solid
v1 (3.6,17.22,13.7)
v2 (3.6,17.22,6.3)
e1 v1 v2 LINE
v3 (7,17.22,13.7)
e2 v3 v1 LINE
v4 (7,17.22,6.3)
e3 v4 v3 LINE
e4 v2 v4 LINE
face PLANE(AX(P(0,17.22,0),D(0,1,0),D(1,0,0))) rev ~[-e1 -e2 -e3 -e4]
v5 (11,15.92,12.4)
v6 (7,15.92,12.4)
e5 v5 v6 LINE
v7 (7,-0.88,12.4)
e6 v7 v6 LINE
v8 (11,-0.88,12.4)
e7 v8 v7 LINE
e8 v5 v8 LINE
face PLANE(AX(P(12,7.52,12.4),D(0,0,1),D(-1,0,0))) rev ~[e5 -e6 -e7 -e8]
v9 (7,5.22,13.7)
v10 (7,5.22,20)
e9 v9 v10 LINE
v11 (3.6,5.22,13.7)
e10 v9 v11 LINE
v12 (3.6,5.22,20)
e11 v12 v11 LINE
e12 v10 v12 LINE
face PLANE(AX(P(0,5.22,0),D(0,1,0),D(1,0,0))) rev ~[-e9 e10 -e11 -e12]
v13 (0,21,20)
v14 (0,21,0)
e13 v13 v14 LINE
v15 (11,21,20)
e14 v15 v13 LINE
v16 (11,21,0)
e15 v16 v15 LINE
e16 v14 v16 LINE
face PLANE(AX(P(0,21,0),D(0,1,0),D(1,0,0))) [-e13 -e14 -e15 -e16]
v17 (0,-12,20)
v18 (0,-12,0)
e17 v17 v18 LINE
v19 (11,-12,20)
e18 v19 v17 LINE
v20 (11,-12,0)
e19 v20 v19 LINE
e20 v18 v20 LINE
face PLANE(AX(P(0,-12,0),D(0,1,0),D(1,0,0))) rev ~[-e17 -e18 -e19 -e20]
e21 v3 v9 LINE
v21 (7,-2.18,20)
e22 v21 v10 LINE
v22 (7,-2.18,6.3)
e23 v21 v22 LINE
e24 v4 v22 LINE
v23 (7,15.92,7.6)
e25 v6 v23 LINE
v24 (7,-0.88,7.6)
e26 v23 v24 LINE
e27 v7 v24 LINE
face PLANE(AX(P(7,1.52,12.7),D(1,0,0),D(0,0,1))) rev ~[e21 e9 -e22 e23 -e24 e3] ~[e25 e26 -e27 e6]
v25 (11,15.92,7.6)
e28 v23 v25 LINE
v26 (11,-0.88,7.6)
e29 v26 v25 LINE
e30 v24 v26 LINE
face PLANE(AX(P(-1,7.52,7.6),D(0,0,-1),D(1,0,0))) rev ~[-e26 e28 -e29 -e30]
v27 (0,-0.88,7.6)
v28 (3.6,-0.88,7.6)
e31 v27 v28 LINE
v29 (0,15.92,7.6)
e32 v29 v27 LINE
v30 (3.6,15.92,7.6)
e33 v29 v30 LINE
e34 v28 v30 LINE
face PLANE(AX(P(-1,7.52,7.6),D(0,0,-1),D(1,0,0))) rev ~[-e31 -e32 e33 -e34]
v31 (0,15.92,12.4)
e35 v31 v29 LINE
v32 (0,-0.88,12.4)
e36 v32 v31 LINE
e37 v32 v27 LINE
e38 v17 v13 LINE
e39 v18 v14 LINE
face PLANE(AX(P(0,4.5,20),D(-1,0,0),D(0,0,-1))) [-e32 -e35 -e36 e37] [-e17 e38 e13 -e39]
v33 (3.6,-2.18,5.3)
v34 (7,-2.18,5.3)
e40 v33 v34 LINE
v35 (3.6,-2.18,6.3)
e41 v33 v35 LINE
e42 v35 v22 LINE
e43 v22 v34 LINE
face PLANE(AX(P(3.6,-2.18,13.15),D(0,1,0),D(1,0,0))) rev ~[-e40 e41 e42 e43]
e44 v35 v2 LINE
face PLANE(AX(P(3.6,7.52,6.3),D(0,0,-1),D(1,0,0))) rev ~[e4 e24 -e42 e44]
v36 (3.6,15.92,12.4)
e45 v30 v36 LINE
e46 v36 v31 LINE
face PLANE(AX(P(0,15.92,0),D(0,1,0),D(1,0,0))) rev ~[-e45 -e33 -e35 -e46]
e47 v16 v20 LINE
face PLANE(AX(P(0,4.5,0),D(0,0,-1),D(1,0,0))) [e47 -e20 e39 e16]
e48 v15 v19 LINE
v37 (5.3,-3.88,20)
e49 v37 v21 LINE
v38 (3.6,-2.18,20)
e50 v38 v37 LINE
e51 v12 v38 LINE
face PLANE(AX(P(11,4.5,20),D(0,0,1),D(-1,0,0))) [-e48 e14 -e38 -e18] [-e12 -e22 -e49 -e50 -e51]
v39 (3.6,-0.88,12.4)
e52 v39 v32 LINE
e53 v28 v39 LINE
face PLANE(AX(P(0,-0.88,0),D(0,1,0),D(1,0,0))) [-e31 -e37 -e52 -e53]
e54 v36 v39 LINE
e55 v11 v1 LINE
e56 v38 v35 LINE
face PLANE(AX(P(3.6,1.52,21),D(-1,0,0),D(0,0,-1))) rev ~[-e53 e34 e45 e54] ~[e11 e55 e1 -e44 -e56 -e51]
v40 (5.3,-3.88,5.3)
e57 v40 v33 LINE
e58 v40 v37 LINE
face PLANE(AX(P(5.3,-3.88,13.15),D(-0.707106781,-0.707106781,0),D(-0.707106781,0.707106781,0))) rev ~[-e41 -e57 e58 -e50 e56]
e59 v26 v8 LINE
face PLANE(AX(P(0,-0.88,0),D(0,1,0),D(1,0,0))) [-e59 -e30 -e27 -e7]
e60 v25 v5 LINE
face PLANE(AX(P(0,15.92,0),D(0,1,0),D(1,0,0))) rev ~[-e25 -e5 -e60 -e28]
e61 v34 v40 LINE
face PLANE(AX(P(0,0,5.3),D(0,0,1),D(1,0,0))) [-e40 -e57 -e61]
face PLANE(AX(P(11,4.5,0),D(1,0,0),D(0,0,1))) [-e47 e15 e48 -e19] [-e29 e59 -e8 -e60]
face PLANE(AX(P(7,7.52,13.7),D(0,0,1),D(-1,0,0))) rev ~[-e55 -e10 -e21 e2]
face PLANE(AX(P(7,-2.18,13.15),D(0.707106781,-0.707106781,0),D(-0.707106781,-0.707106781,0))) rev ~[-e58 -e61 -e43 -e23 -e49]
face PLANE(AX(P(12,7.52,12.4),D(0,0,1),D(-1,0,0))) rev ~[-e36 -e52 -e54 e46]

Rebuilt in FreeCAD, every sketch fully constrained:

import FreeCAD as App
import Part
import Sketcher


def add_polygon(sketch, points):
    """Adds a closed chain of lines whose ends are joined by coincident constraints."""
    first, n = sketch.GeometryCount, len(points)
    for a, b in zip(points, points[1:] + points[:1]):
        sketch.addGeometry(Part.LineSegment(App.Vector(*a, 0), App.Vector(*b, 0)), False)
    for i in range(n):
        sketch.addConstraint(Sketcher.Constraint("Coincident", first + i, 2, first + (i + 1) % n, 1))

doc = App.newDocument("Part")
body = doc.addObject("PartDesign::Body", "Body")

# Sketch on XZ plane
sketch1 = body.newObject("Sketcher::SketchObject", "Sketch")
sketch1.AttachmentSupport = (doc.getObject("XZ_Plane"), [""])
sketch1.MapMode = "FlatFace"
sketch1.AttachmentOffset = App.Placement(App.Vector(0, 0, -4.5), App.Rotation())
add_polygon(sketch1, [(11, 0), (0, 0), (0, 20), (11, 20)])  # lines 0-3
sketch1.addConstraint([
    Sketcher.Constraint("Horizontal", 0),
    Sketcher.Constraint("Vertical", 1),
    Sketcher.Constraint("Horizontal", 2),
    Sketcher.Constraint("Vertical", 3),
    Sketcher.Constraint("Coincident", 0, 2, -1, 1),
    Sketcher.Constraint("DistanceX", 0, 2, 0, 1, 11.0),
    Sketcher.Constraint("DistanceY", 1, 1, 1, 2, 20.0),
])
pad1 = body.newObject("PartDesign::Pad", "Pad")
pad1.Profile = sketch1
pad1.Length = 33
pad1.Midplane = True

# Sketch on XZ plane
sketch2 = body.newObject("Sketcher::SketchObject", "Sketch001")
sketch2.AttachmentSupport = (doc.getObject("XZ_Plane"), [""])
sketch2.MapMode = "FlatFace"
sketch2.AttachmentOffset = App.Placement(App.Vector(0, 0, -7.52), App.Rotation())
add_polygon(sketch2, [(12, 7.6), (-1, 7.6), (-1, 12.4), (12, 12.4)])  # lines 0-3
sketch2.addConstraint([
    Sketcher.Constraint("Horizontal", 0),
    Sketcher.Constraint("Vertical", 1),
    Sketcher.Constraint("Horizontal", 2),
    Sketcher.Constraint("Vertical", 3),
    Sketcher.Constraint("DistanceX", 0, 2, 0, 1, 13.0),
    Sketcher.Constraint("DistanceY", 1, 1, 1, 2, 4.8),
    Sketcher.Constraint("DistanceX", -1, 1, 2, 2, 12.0),
    Sketcher.Constraint("DistanceY", -1, 1, 0, 2, 7.6),
])
pocket1 = body.newObject("PartDesign::Pocket", "Pocket")
pocket1.Profile = sketch2
pocket1.Length = 16.8
pocket1.Midplane = True

# Sketch on XZ plane
sketch3 = body.newObject("Sketcher::SketchObject", "Sketch002")
sketch3.AttachmentSupport = (doc.getObject("XZ_Plane"), [""])
sketch3.MapMode = "FlatFace"
sketch3.AttachmentOffset = App.Placement(App.Vector(0, 0, -7.52), App.Rotation())
add_polygon(sketch3, [(7, 6.3), (3.6, 6.3), (3.6, 13.7), (7, 13.7)])  # lines 0-3
sketch3.addConstraint([
    Sketcher.Constraint("Horizontal", 0),
    Sketcher.Constraint("Vertical", 1),
    Sketcher.Constraint("Horizontal", 2),
    Sketcher.Constraint("Vertical", 3),
    Sketcher.Constraint("DistanceX", 0, 2, 0, 1, 3.4),
    Sketcher.Constraint("DistanceY", 1, 1, 1, 2, 7.4),
    Sketcher.Constraint("DistanceX", -1, 1, 2, 2, 7.0),
    Sketcher.Constraint("DistanceY", -1, 1, 0, 2, 6.3),
])
pocket2 = body.newObject("PartDesign::Pocket", "Pocket001")
pocket2.Profile = sketch3
pocket2.Length = 19.4
pocket2.Midplane = True

# Sketch on XZ plane
sketch4 = body.newObject("Sketcher::SketchObject", "Sketch003")
sketch4.AttachmentSupport = (doc.getObject("XZ_Plane"), [""])
sketch4.MapMode = "FlatFace"
sketch4.AttachmentOffset = App.Placement(App.Vector(0, 0, -1.52), App.Rotation())
add_polygon(sketch4, [(7, 12.7), (3.6, 12.7), (3.6, 21), (7, 21)])  # lines 0-3
sketch4.addConstraint([
    Sketcher.Constraint("Horizontal", 0),
    Sketcher.Constraint("Vertical", 1),
    Sketcher.Constraint("Horizontal", 2),
    Sketcher.Constraint("Vertical", 3),
    Sketcher.Constraint("DistanceX", 0, 2, 0, 1, 3.4),
    Sketcher.Constraint("DistanceY", 1, 1, 1, 2, 8.3),
    Sketcher.Constraint("DistanceX", -1, 1, 2, 2, 7.0),
    Sketcher.Constraint("DistanceY", -1, 1, 0, 2, 12.7),
])
pocket3 = body.newObject("PartDesign::Pocket", "Pocket002")
pocket3.Profile = sketch4
pocket3.Length = 7.4
pocket3.Midplane = True

# Sketch on XY plane
sketch5 = body.newObject("Sketcher::SketchObject", "Sketch004")
sketch5.AttachmentSupport = (doc.getObject("XY_Plane"), [""])
sketch5.MapMode = "FlatFace"
sketch5.AttachmentOffset = App.Placement(App.Vector(0, 0, 13.15), App.Rotation())
add_polygon(sketch5, [(7, -2.2), (3.6, -2.2), (5.3, -3.9)])  # lines 0-2
sketch5.addConstraint([
    Sketcher.Constraint("Horizontal", 0),
    Sketcher.Constraint("Perpendicular", 1, 2),
    Sketcher.Constraint("Equal", 1, 2),
    Sketcher.Constraint("DistanceX", -1, 1, 2, 2, 7.0),
    Sketcher.Constraint("DistanceX", -1, 1, 0, 2, 3.6),
    Sketcher.Constraint("DistanceY", 0, 2, -1, 1, 2.18),
])
pocket4 = body.newObject("PartDesign::Pocket", "Pocket003")
pocket4.Profile = sketch5
pocket4.Length = 15.7
pocket4.Midplane = True

doc.recompute()
